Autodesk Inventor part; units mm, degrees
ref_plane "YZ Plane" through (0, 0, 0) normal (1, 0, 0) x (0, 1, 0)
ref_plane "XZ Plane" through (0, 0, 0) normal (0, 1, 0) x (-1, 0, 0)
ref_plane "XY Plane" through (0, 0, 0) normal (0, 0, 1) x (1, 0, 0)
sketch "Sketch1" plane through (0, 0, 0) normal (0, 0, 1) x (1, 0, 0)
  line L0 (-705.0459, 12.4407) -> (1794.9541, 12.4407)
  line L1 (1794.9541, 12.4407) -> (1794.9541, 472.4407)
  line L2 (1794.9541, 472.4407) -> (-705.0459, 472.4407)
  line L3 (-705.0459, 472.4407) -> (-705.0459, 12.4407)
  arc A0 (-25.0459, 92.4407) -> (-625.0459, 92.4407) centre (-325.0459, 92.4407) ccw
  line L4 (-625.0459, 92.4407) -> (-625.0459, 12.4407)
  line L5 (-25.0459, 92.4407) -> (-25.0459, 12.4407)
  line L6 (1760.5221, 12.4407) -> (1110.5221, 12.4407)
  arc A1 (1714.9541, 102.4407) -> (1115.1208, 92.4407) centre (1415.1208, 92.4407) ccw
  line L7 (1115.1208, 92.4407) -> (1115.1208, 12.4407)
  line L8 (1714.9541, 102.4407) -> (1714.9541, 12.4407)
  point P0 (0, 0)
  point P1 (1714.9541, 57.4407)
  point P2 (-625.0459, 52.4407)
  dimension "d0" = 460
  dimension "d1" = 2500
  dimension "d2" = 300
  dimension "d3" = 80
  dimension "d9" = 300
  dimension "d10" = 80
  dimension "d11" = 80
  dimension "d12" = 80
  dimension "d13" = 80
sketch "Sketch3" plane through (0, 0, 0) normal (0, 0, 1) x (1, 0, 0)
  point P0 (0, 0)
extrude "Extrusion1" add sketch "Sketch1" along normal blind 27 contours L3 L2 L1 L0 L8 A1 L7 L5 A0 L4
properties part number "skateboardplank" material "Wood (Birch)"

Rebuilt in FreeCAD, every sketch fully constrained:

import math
import FreeCAD as App
import Part
import Sketcher

V = App.Vector
Q = App.Units.Quantity

doc = App.newDocument("Part")
body = doc.addObject("PartDesign::Body", "Body")

# Sketch on XY plane
sketch1 = body.newObject("Sketcher::SketchObject", "Sketch")
sketch1.AttachmentSupport = (doc.getObject("XY_Plane"), [""])
sketch1.MapMode = "FlatFace"
sketch1.addGeometry(Part.LineSegment(V(-705, 472, 0), V(-705, 12, 0)), False)
sketch1.addGeometry(Part.LineSegment(V(-705, 12, 0), V(-625, 12, 0)), False)
sketch1.addGeometry(Part.LineSegment(V(-625, 12, 0), V(-625, 92, 0)), False)
sketch1.addGeometry(Part.ArcOfCircle(Part.Circle(V(-325, 92, 0), V(0, 0, 1), 300), math.radians(0), math.radians(180)), False)
sketch1.addGeometry(Part.LineSegment(V(-25, 92, 0), V(-25, 12, 0)), False)
sketch1.addGeometry(Part.LineSegment(V(-25, 12, 0), V(1115, 12, 0)), False)
sketch1.addGeometry(Part.LineSegment(V(1115, 12, 0), V(1115, 92, 0)), False)
sketch1.addGeometry(Part.ArcOfCircle(Part.Circle(V(1415, 92, 0), V(0, 0, 1), 300), math.radians(2), math.radians(180)), False)
sketch1.addGeometry(Part.LineSegment(V(1715, 102, 0), V(1715, 12, 0)), False)
sketch1.addGeometry(Part.LineSegment(V(1715, 12, 0), V(1795, 12, 0)), False)
sketch1.addGeometry(Part.LineSegment(V(1795, 12, 0), V(1795, 472, 0)), False)
sketch1.addGeometry(Part.LineSegment(V(1795, 472, 0), V(-705, 472, 0)), False)
sketch1.addConstraint(Sketcher.Constraint("Coincident", 0, 2, 1, 1))
sketch1.addConstraint(Sketcher.Constraint("Coincident", 1, 2, 2, 1))
sketch1.addConstraint(Sketcher.Constraint("Tangent", 2, 2, 3, 2))
sketch1.addConstraint(Sketcher.Constraint("Tangent", 3, 1, 4, 1))
sketch1.addConstraint(Sketcher.Constraint("Coincident", 4, 2, 5, 1))
sketch1.addConstraint(Sketcher.Constraint("Coincident", 5, 2, 6, 1))
sketch1.addConstraint(Sketcher.Constraint("Tangent", 6, 2, 7, 2))
sketch1.addConstraint(Sketcher.Constraint("Coincident", 7, 1, 8, 1))
sketch1.addConstraint(Sketcher.Constraint("Coincident", 8, 2, 9, 1))
sketch1.addConstraint(Sketcher.Constraint("Coincident", 9, 2, 10, 1))
sketch1.addConstraint(Sketcher.Constraint("Coincident", 10, 2, 11, 1))
sketch1.addConstraint(Sketcher.Constraint("Coincident", 11, 2, 0, 1))
sketch1.addConstraint(Sketcher.Constraint("Vertical", 0))
sketch1.addConstraint(Sketcher.Constraint("Horizontal", 1))
sketch1.addConstraint(Sketcher.Constraint("Vertical", 2))
sketch1.addConstraint(Sketcher.Constraint("Vertical", 4))
sketch1.addConstraint(Sketcher.Constraint("Horizontal", 5))
sketch1.addConstraint(Sketcher.Constraint("Vertical", 6))
sketch1.addConstraint(Sketcher.Constraint("Vertical", 8))
sketch1.addConstraint(Sketcher.Constraint("Horizontal", 9))
sketch1.addConstraint(Sketcher.Constraint("Vertical", 10))
sketch1.addConstraint(Sketcher.Constraint("Horizontal", 11))
sketch1.addConstraint(Sketcher.Constraint("Equal", 3, 7))
sketch1.addConstraint(Sketcher.Constraint("Horizontal", 3, 3, 7, 3))
sketch1.addConstraint(Sketcher.Constraint("Horizontal", 1, 2, 4, 2))
sketch1.addConstraint(Sketcher.Constraint("Horizontal", 5, 2, 8, 2))
sketch1.addConstraint(Sketcher.Constraint("Equal", 1, 9))
sketch1.addConstraint(Sketcher.Constraint("Equal", 9, 2))
sketch1.addConstraint(Sketcher.Constraint("Radius", 3, Q("300 mm")))
sketch1.addConstraint(Sketcher.Constraint("DistanceX", 1, 1, 1, 2, Q("80 mm")))
sketch1.addConstraint(Sketcher.Constraint("DistanceX", 11, 2, 11, 1, Q("2500 mm")))
sketch1.addConstraint(Sketcher.Constraint("DistanceY", 0, 2, 0, 1, Q("460 mm")))
sketch1.addConstraint(Sketcher.Constraint("DistanceY", 8, 2, 8, 1, Q("90 mm")))
sketch1.addConstraint(Sketcher.Constraint("DistanceX", 3, 3, -1, 1, Q("325.046 mm")))
sketch1.addConstraint(Sketcher.Constraint("DistanceY", -1, 1, 3, 3, Q("92.4407 mm")))
pad1 = body.newObject("PartDesign::Pad", "Pad")
pad1.Profile = sketch1
pad1.Length = 27

doc.recompute()
